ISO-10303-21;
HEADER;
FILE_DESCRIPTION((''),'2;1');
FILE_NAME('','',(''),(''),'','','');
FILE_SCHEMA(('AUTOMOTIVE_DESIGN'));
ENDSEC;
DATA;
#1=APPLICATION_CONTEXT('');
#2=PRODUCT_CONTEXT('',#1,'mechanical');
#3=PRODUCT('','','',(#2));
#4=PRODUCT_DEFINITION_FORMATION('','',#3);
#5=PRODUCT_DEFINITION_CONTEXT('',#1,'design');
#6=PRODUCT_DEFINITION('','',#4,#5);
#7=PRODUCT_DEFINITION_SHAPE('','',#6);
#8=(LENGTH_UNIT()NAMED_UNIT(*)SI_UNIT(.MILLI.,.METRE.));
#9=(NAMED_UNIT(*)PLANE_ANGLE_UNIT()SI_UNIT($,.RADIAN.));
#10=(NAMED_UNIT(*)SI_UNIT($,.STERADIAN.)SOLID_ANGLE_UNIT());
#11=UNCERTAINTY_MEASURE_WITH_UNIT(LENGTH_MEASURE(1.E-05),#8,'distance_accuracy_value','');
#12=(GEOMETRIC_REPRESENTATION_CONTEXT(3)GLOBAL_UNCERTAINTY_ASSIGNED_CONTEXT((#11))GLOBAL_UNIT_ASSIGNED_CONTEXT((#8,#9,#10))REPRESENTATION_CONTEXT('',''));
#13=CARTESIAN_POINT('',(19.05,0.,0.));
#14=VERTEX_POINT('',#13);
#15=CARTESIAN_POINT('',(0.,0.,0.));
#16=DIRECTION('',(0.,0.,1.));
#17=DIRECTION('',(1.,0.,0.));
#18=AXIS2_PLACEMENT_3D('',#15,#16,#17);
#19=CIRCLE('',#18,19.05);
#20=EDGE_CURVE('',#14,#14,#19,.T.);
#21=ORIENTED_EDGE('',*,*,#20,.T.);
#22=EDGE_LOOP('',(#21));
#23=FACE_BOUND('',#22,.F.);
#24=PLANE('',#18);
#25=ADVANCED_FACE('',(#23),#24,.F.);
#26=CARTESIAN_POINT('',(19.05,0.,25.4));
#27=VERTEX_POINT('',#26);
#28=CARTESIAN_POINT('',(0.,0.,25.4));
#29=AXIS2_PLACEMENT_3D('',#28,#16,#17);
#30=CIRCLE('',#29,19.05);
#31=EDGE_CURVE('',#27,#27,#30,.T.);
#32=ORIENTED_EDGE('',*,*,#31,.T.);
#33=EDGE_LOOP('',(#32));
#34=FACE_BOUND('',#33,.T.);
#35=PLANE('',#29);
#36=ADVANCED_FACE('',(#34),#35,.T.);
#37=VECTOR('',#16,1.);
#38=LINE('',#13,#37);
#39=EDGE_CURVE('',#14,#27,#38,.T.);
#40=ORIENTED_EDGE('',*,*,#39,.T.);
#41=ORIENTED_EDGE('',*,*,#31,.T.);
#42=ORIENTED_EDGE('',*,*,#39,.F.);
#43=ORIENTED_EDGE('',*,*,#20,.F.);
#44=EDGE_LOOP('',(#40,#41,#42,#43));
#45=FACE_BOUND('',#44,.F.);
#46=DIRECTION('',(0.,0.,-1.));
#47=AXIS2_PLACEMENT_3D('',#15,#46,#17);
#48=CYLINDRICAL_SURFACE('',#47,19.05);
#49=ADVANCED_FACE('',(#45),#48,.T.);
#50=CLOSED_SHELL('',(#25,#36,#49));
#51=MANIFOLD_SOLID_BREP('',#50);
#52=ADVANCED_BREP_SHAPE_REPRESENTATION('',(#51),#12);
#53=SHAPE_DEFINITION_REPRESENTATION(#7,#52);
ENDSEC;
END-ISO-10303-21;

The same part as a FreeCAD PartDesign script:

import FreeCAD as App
import Part
import Sketcher
Q = App.Units.Quantity

doc = App.newDocument("Part")
body = doc.addObject("PartDesign::Body", "Body")

sketch1 = body.newObject("Sketcher::SketchObject", "Sketch")
sketch1.AttachmentSupport = (doc.getObject("XY_Plane"), [""])
sketch1.MapMode = "FlatFace"
sketch1.addGeometry(Part.Circle(App.Vector(0, 0, 0), App.Vector(0, 0, 1), 19), False)
sketch1.addConstraint(Sketcher.Constraint("Coincident", 0, 3, -1, 1))
sketch1.addConstraint(Sketcher.Constraint("Diameter", 0, Q("1.5 in")))
pad1 = body.newObject("PartDesign::Pad", "Pad")
pad1.Profile = sketch1
pad1.Length = Q("1 in")

doc.recompute()
